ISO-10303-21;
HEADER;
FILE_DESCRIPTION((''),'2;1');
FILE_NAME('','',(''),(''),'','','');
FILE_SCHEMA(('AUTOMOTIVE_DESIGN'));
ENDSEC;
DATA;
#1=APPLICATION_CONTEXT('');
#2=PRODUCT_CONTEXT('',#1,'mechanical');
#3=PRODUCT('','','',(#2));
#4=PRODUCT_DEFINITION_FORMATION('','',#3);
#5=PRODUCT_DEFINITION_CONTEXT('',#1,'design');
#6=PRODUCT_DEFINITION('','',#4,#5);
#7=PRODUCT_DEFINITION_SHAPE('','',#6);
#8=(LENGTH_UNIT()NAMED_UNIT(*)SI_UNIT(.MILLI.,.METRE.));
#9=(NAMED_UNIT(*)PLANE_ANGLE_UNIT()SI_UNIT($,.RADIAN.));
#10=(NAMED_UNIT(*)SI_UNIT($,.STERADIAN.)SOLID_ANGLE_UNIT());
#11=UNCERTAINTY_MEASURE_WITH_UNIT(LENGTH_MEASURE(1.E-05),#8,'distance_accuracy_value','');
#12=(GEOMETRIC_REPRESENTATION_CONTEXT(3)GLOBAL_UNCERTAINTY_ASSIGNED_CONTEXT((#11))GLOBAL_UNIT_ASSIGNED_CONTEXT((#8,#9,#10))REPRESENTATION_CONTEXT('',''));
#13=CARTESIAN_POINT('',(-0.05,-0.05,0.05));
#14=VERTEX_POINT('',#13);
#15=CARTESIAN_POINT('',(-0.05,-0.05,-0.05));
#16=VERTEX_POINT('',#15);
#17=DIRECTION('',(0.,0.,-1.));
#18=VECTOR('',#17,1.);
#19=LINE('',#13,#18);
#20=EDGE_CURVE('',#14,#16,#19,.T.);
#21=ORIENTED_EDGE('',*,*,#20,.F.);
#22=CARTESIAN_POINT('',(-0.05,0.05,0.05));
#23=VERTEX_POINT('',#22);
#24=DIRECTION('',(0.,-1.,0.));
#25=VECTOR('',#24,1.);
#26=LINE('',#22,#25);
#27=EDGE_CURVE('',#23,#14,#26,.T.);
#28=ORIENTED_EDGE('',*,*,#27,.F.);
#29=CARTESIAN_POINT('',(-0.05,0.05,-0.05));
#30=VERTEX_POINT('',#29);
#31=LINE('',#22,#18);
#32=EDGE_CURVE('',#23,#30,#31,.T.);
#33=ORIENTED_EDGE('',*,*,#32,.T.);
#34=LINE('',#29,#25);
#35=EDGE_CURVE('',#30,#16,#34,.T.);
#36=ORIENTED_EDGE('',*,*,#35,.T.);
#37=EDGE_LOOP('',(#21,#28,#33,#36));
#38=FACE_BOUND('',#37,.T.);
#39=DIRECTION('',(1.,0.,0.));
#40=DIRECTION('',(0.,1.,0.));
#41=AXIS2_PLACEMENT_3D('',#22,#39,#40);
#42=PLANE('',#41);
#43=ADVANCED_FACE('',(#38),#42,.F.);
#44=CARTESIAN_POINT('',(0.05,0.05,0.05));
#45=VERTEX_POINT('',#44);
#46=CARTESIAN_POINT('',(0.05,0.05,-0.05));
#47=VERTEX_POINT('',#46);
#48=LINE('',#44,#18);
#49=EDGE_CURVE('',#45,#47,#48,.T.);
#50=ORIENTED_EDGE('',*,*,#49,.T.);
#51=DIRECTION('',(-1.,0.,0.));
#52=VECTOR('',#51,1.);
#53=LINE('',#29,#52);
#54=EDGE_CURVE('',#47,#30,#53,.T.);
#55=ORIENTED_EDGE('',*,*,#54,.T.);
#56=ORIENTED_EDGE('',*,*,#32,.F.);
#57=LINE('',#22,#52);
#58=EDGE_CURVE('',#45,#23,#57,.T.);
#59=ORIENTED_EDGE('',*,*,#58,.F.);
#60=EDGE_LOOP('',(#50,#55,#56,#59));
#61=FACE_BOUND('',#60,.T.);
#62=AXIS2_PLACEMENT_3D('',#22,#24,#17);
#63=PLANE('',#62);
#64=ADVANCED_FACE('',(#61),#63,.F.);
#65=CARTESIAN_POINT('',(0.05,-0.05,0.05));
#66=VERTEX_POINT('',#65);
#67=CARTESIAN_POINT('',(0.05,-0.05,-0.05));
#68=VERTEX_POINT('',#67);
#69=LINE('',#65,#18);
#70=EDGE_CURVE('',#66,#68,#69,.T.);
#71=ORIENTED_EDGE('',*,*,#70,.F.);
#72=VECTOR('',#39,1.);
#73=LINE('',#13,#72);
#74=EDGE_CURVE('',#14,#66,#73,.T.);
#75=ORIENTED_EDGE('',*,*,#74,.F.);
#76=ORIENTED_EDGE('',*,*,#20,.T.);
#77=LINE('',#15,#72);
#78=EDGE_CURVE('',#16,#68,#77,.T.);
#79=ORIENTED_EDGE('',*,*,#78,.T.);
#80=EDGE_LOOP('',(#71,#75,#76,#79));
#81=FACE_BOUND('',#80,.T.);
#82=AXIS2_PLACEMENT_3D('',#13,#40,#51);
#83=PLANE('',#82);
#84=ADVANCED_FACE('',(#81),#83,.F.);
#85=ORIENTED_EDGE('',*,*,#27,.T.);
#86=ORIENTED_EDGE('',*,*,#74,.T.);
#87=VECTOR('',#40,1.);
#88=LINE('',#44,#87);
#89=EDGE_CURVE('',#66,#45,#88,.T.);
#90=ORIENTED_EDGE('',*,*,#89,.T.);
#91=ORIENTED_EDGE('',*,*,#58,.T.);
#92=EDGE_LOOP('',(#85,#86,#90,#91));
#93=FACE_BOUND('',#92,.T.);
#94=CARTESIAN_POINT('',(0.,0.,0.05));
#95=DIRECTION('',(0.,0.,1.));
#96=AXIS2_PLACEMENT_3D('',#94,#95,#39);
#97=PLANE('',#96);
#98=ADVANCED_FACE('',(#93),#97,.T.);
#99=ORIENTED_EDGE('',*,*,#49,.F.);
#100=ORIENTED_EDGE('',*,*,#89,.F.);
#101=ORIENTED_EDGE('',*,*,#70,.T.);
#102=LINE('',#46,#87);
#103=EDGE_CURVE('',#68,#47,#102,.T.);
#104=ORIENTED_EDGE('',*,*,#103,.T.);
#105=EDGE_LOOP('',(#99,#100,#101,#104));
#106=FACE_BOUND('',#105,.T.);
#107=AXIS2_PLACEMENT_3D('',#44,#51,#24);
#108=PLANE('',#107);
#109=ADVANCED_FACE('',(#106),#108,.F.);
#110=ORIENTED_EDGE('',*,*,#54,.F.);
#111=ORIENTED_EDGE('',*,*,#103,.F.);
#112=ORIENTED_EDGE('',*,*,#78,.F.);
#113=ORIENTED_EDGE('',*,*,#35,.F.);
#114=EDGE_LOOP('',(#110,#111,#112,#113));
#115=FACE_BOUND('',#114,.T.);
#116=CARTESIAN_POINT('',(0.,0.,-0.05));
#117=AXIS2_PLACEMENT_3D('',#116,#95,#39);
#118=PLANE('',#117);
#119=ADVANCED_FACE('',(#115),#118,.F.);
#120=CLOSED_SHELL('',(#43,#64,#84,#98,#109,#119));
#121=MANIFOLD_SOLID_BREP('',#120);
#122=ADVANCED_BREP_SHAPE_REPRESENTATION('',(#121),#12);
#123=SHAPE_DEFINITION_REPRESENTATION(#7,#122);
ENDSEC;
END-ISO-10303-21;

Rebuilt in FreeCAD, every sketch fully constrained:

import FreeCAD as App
import Part
import Sketcher

V = App.Vector


def add_polygon(sketch, points):
    """Adds a closed chain of lines whose ends are joined by coincident constraints."""
    first, n = sketch.GeometryCount, len(points)
    for a, b in zip(points, points[1:] + points[:1]):
        sketch.addGeometry(Part.LineSegment(App.Vector(*a, 0), App.Vector(*b, 0)), False)
    for i in range(n):
        sketch.addConstraint(Sketcher.Constraint("Coincident", first + i, 2, first + (i + 1) % n, 1))

doc = App.newDocument("Part")
body = doc.addObject("PartDesign::Body", "Body")

# Sketch on XY plane
sketch1 = doc.addObject("Sketcher::SketchObject", "Sketch")
body.addObject(sketch1)
sketch1.AttachmentSupport = (doc.XY_Plane, [""])
sketch1.MapMode = "FlatFace"
add_polygon(sketch1, [(-0.05, 0.05), (-0.05, -0.05), (0.05, -0.05), (0.05, 0.05)])  # lines 0-3
sketch1.addConstraint([
    Sketcher.Constraint("Vertical", 0),
    Sketcher.Constraint("Horizontal", 1),
    Sketcher.Constraint("Vertical", 2),
    Sketcher.Constraint("Horizontal", 3),
    Sketcher.Constraint("Symmetric", 0, 2, 2, 2, -1, 1),
    Sketcher.Constraint("Equal", 3, 0),
    Sketcher.Constraint("DistanceX", 1, 1, 1, 2, 0.1),
])
pad1 = doc.addObject("PartDesign::Pad", "Pad")
body.addObject(pad1)
pad1.Profile = sketch1
pad1.Length = 0.1
pad1.Midplane = True

doc.recompute()
